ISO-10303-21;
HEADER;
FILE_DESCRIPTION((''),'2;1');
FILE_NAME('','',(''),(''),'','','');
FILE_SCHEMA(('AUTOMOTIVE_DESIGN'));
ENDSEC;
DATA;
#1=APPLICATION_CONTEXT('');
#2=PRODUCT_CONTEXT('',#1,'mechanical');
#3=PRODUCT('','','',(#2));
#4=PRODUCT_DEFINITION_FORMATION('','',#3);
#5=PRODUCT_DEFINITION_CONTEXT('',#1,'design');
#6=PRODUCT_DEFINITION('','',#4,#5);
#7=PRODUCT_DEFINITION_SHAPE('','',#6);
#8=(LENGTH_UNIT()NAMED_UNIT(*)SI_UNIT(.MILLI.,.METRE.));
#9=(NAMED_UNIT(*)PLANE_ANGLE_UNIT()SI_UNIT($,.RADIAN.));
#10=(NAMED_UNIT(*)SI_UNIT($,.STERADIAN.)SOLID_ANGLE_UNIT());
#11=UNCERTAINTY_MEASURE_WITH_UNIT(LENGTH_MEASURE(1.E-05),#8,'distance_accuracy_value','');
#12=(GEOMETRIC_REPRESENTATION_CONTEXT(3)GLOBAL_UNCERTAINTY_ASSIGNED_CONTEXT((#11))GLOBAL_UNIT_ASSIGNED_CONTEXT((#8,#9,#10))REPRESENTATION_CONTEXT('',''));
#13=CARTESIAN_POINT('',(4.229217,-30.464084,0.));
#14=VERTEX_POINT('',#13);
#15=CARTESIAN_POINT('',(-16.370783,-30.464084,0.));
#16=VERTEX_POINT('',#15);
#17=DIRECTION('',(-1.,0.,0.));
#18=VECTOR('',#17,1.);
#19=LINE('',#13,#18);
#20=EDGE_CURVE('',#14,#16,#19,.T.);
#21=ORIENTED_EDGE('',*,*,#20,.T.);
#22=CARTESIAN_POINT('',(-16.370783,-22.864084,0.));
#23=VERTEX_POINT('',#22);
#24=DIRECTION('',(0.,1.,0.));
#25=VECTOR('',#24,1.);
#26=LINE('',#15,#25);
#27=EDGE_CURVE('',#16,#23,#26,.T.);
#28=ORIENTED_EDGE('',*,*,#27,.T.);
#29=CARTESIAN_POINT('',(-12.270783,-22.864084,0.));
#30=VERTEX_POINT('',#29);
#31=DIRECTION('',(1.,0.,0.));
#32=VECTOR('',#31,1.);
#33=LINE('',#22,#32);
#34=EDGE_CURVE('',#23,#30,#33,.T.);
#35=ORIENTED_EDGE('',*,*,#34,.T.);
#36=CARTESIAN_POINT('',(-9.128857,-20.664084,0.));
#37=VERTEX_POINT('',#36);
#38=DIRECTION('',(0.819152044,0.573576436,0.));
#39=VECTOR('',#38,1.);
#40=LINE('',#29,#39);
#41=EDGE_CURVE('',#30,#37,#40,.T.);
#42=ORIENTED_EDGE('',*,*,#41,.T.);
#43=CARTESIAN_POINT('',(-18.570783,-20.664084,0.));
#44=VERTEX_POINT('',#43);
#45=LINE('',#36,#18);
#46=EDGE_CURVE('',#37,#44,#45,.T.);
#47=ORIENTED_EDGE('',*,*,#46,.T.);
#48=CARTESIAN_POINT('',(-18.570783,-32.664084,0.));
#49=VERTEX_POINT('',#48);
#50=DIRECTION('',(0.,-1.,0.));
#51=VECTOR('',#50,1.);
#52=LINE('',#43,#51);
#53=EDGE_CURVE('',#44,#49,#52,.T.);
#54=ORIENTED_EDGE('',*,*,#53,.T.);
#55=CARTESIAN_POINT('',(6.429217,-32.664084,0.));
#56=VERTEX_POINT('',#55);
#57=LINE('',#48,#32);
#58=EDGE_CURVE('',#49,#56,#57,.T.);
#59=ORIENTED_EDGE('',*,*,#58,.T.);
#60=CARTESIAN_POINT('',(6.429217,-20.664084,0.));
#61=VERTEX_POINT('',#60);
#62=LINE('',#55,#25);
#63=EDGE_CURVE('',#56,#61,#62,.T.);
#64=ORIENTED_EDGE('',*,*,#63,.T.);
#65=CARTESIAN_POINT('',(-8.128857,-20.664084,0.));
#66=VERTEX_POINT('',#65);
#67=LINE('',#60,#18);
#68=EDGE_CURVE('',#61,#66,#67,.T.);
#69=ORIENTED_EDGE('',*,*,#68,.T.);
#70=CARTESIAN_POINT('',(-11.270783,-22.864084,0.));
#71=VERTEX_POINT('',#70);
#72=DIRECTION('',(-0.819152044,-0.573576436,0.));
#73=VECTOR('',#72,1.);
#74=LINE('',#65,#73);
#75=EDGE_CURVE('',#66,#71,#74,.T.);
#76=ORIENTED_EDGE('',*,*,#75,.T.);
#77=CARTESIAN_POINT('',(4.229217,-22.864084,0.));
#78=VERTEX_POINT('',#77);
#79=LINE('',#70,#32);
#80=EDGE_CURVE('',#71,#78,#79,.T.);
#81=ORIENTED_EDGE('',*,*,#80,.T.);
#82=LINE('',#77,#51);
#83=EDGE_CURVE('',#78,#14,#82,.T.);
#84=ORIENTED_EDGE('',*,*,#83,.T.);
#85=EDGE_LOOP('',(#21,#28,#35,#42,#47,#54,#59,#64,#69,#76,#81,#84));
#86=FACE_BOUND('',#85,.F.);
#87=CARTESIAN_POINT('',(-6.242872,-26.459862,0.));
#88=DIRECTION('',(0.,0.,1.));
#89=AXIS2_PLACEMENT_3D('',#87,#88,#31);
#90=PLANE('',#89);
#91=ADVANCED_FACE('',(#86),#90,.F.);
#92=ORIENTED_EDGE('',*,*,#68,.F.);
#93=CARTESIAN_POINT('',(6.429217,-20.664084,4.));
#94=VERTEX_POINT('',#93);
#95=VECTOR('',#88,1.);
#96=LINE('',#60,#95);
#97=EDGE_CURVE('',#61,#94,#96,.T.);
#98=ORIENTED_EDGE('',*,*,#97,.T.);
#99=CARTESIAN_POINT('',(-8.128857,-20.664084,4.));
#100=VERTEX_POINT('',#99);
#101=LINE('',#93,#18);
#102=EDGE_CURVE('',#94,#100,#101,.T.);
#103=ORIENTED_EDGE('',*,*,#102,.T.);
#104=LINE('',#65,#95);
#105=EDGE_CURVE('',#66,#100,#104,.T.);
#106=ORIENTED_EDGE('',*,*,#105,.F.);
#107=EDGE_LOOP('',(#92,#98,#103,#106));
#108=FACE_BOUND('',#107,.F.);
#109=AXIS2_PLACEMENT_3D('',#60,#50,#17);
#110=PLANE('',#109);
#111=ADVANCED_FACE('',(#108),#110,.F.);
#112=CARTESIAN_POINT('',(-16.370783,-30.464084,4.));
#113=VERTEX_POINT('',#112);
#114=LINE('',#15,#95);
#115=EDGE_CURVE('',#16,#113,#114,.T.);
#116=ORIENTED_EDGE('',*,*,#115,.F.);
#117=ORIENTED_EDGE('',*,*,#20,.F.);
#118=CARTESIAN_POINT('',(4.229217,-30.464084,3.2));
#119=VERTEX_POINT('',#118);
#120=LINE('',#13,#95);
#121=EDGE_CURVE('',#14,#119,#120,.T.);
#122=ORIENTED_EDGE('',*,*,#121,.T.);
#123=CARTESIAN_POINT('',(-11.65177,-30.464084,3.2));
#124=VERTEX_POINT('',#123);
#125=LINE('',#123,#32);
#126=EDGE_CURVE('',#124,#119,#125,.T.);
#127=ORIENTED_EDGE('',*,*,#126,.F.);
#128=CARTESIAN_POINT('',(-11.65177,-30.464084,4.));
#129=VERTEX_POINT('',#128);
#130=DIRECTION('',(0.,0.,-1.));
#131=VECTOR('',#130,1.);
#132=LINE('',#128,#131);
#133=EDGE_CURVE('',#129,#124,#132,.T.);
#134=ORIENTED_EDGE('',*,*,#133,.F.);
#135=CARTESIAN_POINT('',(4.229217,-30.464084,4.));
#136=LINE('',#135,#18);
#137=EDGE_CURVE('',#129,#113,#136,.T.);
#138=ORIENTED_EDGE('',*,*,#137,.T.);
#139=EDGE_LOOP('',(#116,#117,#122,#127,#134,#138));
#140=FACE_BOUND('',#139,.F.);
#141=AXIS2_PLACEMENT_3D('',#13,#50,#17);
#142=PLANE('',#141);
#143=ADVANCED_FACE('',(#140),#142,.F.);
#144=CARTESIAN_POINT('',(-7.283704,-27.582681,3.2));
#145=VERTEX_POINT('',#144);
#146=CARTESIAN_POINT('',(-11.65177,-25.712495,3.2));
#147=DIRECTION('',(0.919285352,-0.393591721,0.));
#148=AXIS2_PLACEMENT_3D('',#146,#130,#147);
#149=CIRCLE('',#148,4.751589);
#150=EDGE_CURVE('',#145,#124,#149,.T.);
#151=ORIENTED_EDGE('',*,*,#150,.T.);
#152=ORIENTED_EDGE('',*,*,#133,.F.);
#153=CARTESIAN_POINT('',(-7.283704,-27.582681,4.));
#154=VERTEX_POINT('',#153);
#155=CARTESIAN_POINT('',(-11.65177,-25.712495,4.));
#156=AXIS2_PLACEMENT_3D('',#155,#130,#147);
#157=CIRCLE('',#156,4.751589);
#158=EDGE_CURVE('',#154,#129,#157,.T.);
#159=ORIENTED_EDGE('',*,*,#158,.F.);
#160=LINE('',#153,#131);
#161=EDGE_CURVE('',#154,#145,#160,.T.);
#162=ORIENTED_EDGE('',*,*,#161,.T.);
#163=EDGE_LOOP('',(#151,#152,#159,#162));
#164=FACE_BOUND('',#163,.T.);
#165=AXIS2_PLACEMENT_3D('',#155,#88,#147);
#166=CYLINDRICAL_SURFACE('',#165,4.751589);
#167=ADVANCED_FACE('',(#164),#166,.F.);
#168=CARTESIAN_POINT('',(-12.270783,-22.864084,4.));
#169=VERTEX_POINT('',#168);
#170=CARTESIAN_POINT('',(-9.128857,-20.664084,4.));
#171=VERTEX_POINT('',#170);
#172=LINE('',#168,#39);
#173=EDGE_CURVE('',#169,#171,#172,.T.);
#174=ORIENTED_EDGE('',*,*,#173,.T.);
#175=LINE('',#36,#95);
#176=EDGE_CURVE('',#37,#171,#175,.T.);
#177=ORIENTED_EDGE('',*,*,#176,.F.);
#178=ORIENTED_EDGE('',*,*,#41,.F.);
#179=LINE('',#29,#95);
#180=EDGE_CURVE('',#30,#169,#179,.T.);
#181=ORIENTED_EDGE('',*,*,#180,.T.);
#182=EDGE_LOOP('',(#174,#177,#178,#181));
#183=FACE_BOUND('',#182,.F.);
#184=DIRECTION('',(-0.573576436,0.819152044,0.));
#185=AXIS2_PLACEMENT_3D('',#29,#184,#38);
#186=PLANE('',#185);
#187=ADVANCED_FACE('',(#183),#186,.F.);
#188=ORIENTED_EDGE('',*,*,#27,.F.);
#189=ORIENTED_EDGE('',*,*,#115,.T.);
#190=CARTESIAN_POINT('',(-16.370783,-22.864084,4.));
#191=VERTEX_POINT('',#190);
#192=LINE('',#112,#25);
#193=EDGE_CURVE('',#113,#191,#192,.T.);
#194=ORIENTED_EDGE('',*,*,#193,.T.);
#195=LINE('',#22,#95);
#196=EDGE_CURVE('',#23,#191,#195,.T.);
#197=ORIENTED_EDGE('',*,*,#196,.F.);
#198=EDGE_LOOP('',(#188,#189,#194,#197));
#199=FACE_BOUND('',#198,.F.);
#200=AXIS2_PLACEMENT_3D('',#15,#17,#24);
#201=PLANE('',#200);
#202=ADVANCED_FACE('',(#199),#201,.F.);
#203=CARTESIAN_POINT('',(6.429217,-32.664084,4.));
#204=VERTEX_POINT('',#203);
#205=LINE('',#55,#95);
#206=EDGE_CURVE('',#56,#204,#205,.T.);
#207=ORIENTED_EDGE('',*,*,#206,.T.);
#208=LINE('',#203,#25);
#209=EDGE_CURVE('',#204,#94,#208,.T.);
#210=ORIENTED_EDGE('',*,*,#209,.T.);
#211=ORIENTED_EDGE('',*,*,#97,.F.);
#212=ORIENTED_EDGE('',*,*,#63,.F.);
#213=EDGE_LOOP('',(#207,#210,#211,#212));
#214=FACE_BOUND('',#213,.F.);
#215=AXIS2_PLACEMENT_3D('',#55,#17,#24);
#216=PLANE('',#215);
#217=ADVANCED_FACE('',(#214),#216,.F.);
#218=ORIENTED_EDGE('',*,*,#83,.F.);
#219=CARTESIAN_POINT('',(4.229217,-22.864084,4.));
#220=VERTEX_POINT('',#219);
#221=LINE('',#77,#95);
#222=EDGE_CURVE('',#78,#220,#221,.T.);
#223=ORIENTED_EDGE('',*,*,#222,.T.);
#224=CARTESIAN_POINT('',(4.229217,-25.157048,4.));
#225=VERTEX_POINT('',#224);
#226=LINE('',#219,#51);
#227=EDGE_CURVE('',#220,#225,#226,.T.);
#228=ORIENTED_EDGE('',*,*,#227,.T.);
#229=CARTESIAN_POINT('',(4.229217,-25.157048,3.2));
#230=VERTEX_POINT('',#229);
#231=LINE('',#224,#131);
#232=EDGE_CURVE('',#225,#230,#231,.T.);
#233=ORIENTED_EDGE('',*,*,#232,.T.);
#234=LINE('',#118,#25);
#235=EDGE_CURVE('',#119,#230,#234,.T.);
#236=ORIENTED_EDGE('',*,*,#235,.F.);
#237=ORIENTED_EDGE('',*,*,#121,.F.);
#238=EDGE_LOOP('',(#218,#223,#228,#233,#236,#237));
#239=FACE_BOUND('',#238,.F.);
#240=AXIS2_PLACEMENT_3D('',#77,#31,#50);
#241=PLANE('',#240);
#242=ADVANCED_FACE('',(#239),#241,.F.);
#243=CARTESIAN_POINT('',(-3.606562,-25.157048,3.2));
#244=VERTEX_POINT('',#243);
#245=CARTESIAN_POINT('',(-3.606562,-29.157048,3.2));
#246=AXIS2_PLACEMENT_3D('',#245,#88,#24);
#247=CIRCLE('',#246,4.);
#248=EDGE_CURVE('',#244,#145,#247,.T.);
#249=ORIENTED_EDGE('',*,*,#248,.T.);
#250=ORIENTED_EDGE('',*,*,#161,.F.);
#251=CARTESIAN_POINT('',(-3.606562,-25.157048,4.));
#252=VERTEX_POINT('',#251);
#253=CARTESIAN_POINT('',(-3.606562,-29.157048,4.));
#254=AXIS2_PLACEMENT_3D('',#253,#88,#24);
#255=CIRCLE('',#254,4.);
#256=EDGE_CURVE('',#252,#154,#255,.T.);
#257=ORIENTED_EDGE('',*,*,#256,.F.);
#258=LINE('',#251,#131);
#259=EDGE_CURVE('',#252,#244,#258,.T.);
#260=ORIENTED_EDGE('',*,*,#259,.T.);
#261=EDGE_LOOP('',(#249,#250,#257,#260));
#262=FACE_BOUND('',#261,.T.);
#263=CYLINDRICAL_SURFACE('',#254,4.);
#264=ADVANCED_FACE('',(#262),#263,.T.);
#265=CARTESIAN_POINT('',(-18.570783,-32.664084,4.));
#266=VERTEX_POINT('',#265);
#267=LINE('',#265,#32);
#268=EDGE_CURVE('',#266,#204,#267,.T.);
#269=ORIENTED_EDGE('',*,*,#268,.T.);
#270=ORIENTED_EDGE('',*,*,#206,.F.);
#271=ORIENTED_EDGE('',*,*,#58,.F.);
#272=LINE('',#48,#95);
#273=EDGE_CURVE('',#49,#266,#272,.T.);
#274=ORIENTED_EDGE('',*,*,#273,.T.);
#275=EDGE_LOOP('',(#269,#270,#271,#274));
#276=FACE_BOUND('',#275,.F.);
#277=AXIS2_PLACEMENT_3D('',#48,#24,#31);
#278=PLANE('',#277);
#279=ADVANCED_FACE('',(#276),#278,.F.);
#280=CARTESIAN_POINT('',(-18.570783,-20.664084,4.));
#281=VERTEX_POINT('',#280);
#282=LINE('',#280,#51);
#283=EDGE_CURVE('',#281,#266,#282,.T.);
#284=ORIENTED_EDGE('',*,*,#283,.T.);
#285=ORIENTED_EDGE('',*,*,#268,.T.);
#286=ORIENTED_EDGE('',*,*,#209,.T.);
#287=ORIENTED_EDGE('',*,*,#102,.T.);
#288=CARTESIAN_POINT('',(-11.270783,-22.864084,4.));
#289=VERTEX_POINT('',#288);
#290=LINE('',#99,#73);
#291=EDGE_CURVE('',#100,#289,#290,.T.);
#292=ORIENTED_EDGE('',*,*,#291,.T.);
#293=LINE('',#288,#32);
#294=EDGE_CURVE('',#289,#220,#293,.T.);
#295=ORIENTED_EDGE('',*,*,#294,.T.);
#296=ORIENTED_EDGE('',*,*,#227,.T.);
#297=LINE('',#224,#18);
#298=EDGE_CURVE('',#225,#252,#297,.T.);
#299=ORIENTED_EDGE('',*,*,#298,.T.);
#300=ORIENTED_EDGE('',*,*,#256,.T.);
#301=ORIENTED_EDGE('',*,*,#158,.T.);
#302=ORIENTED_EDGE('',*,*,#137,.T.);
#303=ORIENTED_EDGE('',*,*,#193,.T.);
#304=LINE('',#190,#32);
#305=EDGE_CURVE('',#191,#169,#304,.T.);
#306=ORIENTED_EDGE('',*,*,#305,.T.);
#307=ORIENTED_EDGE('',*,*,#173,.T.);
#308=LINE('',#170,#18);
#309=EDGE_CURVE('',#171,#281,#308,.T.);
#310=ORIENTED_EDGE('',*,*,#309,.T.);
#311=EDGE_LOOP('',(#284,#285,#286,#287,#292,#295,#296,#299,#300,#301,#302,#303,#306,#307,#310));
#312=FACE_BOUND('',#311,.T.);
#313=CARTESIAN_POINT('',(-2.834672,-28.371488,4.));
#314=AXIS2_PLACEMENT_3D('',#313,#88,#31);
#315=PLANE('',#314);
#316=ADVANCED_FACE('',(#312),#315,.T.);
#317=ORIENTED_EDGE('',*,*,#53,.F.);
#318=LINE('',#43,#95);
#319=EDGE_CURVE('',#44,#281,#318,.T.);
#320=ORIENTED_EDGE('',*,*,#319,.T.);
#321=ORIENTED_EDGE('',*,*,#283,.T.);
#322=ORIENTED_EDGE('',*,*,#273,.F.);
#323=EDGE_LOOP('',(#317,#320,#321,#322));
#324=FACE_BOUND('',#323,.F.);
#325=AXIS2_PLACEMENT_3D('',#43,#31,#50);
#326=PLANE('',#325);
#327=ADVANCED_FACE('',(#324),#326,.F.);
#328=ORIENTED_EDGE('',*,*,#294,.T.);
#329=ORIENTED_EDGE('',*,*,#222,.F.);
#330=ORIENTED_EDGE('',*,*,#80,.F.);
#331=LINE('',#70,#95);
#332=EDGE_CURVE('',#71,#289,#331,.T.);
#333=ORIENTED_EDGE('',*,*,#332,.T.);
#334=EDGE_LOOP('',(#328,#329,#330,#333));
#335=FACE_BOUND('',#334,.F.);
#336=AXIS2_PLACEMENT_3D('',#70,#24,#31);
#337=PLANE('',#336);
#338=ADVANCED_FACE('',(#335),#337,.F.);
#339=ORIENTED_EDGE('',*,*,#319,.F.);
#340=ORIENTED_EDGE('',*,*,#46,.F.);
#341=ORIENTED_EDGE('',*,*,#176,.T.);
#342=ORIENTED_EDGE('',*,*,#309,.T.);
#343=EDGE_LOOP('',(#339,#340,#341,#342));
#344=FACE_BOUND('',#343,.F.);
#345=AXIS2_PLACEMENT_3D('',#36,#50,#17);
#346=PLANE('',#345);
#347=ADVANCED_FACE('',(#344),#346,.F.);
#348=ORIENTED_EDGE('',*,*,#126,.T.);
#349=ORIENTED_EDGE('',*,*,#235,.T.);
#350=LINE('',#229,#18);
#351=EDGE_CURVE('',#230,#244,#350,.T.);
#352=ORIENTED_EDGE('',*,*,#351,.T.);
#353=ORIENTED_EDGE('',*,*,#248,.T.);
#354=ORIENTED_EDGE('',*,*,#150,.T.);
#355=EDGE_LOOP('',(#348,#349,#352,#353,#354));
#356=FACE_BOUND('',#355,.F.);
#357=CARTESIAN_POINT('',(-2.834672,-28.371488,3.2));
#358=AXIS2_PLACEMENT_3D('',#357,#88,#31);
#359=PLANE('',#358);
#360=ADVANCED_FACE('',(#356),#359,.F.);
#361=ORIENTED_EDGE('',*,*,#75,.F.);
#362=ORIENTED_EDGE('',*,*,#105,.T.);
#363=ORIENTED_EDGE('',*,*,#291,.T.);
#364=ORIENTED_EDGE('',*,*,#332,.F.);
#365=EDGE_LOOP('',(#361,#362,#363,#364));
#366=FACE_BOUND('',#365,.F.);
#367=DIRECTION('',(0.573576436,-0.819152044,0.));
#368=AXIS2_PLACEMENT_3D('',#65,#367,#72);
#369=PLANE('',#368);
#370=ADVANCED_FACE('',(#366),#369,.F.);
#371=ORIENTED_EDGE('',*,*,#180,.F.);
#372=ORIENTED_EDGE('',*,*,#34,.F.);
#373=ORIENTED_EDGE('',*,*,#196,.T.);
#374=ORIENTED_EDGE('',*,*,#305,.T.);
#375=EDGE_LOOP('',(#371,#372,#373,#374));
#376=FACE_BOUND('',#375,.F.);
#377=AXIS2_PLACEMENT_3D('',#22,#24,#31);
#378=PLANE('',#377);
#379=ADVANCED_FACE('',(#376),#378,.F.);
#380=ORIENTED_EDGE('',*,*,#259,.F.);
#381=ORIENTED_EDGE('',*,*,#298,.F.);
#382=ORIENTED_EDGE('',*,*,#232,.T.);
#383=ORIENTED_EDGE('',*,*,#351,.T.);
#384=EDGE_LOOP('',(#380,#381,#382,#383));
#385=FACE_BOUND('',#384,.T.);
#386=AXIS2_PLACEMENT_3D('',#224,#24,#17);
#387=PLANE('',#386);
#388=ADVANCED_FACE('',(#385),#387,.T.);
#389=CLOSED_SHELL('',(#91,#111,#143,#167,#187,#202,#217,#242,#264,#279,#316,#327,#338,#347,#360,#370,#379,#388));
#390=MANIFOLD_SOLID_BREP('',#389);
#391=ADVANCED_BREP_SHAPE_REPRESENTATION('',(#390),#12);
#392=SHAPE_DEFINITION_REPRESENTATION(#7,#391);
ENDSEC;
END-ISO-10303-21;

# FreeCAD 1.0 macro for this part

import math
import FreeCAD as App
import Part
import Sketcher
Q = App.Units.Quantity

doc = App.newDocument("Part")
body = doc.addObject("PartDesign::Body", "Body")

# Sketch on XY plane
sketch1 = body.newObject("Sketcher::SketchObject", "Sketch")
sketch1.AttachmentSupport = (doc.getObject("XY_Plane"), [""])
sketch1.MapMode = "FlatFace"
sketch1.addGeometry([
    Part.LineSegment(App.Vector(-9.1, -20.7, 0), App.Vector(-18.6, -20.7, 0)),  # 0
    Part.LineSegment(App.Vector(-18.6, -20.7, 0), App.Vector(-18.6, -32.7, 0)),  # 1
    Part.LineSegment(App.Vector(-18.6, -32.7, 0), App.Vector(6.4, -32.7, 0)),  # 2
    Part.LineSegment(App.Vector(6.4, -32.7, 0), App.Vector(6.4, -20.7, 0)),  # 3
    Part.LineSegment(App.Vector(6.4, -20.7, 0), App.Vector(-8.1, -20.7, 0)),  # 4
    Part.LineSegment(App.Vector(-8.1, -20.7, 0), App.Vector(-11.3, -22.9, 0)),  # 5
    Part.LineSegment(App.Vector(-11.3, -22.9, 0), App.Vector(4.2, -22.9, 0)),  # 6
    Part.LineSegment(App.Vector(4.2, -22.9, 0), App.Vector(4.2, -30.5, 0)),  # 7
    Part.LineSegment(App.Vector(4.2, -30.5, 0), App.Vector(-16.4, -30.5, 0)),  # 8
    Part.LineSegment(App.Vector(-16.4, -30.5, 0), App.Vector(-16.4, -22.9, 0)),  # 9
    Part.LineSegment(App.Vector(-16.4, -22.9, 0), App.Vector(-12.3, -22.9, 0)),  # 10
    Part.LineSegment(App.Vector(-12.3, -22.9, 0), App.Vector(-9.1, -20.7, 0)),  # 11
], False)
sketch1.addConstraint([
    Sketcher.Constraint("Coincident", 0, 2, 1, 1),
    Sketcher.Constraint("Coincident", 1, 2, 2, 1),
    Sketcher.Constraint("Coincident", 2, 2, 3, 1),
    Sketcher.Constraint("Coincident", 3, 2, 4, 1),
    Sketcher.Constraint("Coincident", 4, 2, 5, 1),
    Sketcher.Constraint("Coincident", 5, 2, 6, 1),
    Sketcher.Constraint("Coincident", 6, 2, 7, 1),
    Sketcher.Constraint("Coincident", 7, 2, 8, 1),
    Sketcher.Constraint("Coincident", 8, 2, 9, 1),
    Sketcher.Constraint("Coincident", 9, 2, 10, 1),
    Sketcher.Constraint("Coincident", 10, 2, 11, 1),
    Sketcher.Constraint("Coincident", 11, 2, 0, 1),
    Sketcher.Constraint("Horizontal", 0),
    Sketcher.Constraint("Vertical", 1),
    Sketcher.Constraint("Horizontal", 2),
    Sketcher.Constraint("Vertical", 3),
    Sketcher.Constraint("Horizontal", 4),
    Sketcher.Constraint("Horizontal", 6),
    Sketcher.Constraint("Vertical", 7),
    Sketcher.Constraint("Horizontal", 8),
    Sketcher.Constraint("Vertical", 9),
    Sketcher.Constraint("Horizontal", 10),
    Sketcher.Constraint("Parallel", 5, 11),
    Sketcher.Constraint("Horizontal", 0, 2, 3, 2),
    Sketcher.Constraint("Horizontal", 6, 2, 9, 2),
    Sketcher.Constraint("DistanceX", 2, 1, 2, 2, 25.0),
    Sketcher.Constraint("DistanceY", 1, 2, 1, 1, 12.0),
    Sketcher.Constraint("Angle", 5, Q("-145 deg")),
    Sketcher.Constraint("DistanceX", 6, 1, 6, 2, 15.5),
    Sketcher.Constraint("DistanceX", 8, 2, 8, 1, 20.6),
    Sketcher.Constraint("DistanceX", 10, 1, 10, 2, 4.1),
    Sketcher.Constraint("DistanceY", 7, 2, 7, 1, 7.6),
    Sketcher.Constraint("DistanceY", 5, 2, 4, 2, 2.2),
    Sketcher.Constraint("DistanceX", 0, 2, 5, 2, 7.3),
    Sketcher.Constraint("DistanceX", 0, 2, -1, 1, 18.570783),
    Sketcher.Constraint("DistanceY", 0, 2, -1, 1, 20.664084),
])
pad1 = body.newObject("PartDesign::Pad", "Pad")
pad1.Profile = sketch1
pad1.Length = 4

# Sketch on XY plane
sketch2 = body.newObject("Sketcher::SketchObject", "Sketch001")
sketch2.AttachmentSupport = (doc.getObject("XY_Plane"), [""])
sketch2.MapMode = "FlatFace"
sketch2.AttachmentOffset = App.Placement(App.Vector(0, 0, 4), App.Rotation())
sketch2.addGeometry([
    Part.ArcOfCircle(Part.Circle(App.Vector(-11.7, -25.7, 0), App.Vector(0, 0, 1), 4.8), math.radians(-90), math.radians(-23)),  # 0
    Part.LineSegment(App.Vector(-11.7, -30.5, 0), App.Vector(4.2, -30.5, 0)),  # 1
    Part.LineSegment(App.Vector(4.2, -30.5, 0), App.Vector(4.2, -25.2, 0)),  # 2
    Part.LineSegment(App.Vector(4.2, -25.2, 0), App.Vector(-3.6, -25.2, 0)),  # 3
    Part.ArcOfCircle(Part.Circle(App.Vector(-3.6, -29.2, 0), App.Vector(0, 0, 1), 4), math.radians(90), math.radians(157)),  # 4
], False)
sketch2.addConstraint([
    Sketcher.Constraint("Tangent", 0, 1, 1, 1),
    Sketcher.Constraint("Coincident", 1, 2, 2, 1),
    Sketcher.Constraint("Coincident", 2, 2, 3, 1),
    Sketcher.Constraint("Tangent", 3, 2, 4, 1),
    Sketcher.Constraint("Tangent", 4, 2, 0, 2),
    Sketcher.Constraint("Horizontal", 1),
    Sketcher.Constraint("Vertical", 2),
    Sketcher.Constraint("Horizontal", 3),
    Sketcher.Constraint("Radius", 4, 4.0),
    Sketcher.Constraint("Radius", 0, 4.751589),
    Sketcher.Constraint("DistanceX", 3, 2, 3, 1, 7.83578),
    Sketcher.Constraint("DistanceX", 1, 1, 1, 2, 15.880988),
    Sketcher.Constraint("DistanceX", 0, 3, -1, 1, 11.65177),
    Sketcher.Constraint("DistanceY", 4, 2, -1, 1, 27.582681),
])
pad2 = body.newObject("PartDesign::Pad", "Pad001")
pad2.Profile = sketch2
pad2.Length = 0.8
pad2.Reversed = True

doc.recompute()
